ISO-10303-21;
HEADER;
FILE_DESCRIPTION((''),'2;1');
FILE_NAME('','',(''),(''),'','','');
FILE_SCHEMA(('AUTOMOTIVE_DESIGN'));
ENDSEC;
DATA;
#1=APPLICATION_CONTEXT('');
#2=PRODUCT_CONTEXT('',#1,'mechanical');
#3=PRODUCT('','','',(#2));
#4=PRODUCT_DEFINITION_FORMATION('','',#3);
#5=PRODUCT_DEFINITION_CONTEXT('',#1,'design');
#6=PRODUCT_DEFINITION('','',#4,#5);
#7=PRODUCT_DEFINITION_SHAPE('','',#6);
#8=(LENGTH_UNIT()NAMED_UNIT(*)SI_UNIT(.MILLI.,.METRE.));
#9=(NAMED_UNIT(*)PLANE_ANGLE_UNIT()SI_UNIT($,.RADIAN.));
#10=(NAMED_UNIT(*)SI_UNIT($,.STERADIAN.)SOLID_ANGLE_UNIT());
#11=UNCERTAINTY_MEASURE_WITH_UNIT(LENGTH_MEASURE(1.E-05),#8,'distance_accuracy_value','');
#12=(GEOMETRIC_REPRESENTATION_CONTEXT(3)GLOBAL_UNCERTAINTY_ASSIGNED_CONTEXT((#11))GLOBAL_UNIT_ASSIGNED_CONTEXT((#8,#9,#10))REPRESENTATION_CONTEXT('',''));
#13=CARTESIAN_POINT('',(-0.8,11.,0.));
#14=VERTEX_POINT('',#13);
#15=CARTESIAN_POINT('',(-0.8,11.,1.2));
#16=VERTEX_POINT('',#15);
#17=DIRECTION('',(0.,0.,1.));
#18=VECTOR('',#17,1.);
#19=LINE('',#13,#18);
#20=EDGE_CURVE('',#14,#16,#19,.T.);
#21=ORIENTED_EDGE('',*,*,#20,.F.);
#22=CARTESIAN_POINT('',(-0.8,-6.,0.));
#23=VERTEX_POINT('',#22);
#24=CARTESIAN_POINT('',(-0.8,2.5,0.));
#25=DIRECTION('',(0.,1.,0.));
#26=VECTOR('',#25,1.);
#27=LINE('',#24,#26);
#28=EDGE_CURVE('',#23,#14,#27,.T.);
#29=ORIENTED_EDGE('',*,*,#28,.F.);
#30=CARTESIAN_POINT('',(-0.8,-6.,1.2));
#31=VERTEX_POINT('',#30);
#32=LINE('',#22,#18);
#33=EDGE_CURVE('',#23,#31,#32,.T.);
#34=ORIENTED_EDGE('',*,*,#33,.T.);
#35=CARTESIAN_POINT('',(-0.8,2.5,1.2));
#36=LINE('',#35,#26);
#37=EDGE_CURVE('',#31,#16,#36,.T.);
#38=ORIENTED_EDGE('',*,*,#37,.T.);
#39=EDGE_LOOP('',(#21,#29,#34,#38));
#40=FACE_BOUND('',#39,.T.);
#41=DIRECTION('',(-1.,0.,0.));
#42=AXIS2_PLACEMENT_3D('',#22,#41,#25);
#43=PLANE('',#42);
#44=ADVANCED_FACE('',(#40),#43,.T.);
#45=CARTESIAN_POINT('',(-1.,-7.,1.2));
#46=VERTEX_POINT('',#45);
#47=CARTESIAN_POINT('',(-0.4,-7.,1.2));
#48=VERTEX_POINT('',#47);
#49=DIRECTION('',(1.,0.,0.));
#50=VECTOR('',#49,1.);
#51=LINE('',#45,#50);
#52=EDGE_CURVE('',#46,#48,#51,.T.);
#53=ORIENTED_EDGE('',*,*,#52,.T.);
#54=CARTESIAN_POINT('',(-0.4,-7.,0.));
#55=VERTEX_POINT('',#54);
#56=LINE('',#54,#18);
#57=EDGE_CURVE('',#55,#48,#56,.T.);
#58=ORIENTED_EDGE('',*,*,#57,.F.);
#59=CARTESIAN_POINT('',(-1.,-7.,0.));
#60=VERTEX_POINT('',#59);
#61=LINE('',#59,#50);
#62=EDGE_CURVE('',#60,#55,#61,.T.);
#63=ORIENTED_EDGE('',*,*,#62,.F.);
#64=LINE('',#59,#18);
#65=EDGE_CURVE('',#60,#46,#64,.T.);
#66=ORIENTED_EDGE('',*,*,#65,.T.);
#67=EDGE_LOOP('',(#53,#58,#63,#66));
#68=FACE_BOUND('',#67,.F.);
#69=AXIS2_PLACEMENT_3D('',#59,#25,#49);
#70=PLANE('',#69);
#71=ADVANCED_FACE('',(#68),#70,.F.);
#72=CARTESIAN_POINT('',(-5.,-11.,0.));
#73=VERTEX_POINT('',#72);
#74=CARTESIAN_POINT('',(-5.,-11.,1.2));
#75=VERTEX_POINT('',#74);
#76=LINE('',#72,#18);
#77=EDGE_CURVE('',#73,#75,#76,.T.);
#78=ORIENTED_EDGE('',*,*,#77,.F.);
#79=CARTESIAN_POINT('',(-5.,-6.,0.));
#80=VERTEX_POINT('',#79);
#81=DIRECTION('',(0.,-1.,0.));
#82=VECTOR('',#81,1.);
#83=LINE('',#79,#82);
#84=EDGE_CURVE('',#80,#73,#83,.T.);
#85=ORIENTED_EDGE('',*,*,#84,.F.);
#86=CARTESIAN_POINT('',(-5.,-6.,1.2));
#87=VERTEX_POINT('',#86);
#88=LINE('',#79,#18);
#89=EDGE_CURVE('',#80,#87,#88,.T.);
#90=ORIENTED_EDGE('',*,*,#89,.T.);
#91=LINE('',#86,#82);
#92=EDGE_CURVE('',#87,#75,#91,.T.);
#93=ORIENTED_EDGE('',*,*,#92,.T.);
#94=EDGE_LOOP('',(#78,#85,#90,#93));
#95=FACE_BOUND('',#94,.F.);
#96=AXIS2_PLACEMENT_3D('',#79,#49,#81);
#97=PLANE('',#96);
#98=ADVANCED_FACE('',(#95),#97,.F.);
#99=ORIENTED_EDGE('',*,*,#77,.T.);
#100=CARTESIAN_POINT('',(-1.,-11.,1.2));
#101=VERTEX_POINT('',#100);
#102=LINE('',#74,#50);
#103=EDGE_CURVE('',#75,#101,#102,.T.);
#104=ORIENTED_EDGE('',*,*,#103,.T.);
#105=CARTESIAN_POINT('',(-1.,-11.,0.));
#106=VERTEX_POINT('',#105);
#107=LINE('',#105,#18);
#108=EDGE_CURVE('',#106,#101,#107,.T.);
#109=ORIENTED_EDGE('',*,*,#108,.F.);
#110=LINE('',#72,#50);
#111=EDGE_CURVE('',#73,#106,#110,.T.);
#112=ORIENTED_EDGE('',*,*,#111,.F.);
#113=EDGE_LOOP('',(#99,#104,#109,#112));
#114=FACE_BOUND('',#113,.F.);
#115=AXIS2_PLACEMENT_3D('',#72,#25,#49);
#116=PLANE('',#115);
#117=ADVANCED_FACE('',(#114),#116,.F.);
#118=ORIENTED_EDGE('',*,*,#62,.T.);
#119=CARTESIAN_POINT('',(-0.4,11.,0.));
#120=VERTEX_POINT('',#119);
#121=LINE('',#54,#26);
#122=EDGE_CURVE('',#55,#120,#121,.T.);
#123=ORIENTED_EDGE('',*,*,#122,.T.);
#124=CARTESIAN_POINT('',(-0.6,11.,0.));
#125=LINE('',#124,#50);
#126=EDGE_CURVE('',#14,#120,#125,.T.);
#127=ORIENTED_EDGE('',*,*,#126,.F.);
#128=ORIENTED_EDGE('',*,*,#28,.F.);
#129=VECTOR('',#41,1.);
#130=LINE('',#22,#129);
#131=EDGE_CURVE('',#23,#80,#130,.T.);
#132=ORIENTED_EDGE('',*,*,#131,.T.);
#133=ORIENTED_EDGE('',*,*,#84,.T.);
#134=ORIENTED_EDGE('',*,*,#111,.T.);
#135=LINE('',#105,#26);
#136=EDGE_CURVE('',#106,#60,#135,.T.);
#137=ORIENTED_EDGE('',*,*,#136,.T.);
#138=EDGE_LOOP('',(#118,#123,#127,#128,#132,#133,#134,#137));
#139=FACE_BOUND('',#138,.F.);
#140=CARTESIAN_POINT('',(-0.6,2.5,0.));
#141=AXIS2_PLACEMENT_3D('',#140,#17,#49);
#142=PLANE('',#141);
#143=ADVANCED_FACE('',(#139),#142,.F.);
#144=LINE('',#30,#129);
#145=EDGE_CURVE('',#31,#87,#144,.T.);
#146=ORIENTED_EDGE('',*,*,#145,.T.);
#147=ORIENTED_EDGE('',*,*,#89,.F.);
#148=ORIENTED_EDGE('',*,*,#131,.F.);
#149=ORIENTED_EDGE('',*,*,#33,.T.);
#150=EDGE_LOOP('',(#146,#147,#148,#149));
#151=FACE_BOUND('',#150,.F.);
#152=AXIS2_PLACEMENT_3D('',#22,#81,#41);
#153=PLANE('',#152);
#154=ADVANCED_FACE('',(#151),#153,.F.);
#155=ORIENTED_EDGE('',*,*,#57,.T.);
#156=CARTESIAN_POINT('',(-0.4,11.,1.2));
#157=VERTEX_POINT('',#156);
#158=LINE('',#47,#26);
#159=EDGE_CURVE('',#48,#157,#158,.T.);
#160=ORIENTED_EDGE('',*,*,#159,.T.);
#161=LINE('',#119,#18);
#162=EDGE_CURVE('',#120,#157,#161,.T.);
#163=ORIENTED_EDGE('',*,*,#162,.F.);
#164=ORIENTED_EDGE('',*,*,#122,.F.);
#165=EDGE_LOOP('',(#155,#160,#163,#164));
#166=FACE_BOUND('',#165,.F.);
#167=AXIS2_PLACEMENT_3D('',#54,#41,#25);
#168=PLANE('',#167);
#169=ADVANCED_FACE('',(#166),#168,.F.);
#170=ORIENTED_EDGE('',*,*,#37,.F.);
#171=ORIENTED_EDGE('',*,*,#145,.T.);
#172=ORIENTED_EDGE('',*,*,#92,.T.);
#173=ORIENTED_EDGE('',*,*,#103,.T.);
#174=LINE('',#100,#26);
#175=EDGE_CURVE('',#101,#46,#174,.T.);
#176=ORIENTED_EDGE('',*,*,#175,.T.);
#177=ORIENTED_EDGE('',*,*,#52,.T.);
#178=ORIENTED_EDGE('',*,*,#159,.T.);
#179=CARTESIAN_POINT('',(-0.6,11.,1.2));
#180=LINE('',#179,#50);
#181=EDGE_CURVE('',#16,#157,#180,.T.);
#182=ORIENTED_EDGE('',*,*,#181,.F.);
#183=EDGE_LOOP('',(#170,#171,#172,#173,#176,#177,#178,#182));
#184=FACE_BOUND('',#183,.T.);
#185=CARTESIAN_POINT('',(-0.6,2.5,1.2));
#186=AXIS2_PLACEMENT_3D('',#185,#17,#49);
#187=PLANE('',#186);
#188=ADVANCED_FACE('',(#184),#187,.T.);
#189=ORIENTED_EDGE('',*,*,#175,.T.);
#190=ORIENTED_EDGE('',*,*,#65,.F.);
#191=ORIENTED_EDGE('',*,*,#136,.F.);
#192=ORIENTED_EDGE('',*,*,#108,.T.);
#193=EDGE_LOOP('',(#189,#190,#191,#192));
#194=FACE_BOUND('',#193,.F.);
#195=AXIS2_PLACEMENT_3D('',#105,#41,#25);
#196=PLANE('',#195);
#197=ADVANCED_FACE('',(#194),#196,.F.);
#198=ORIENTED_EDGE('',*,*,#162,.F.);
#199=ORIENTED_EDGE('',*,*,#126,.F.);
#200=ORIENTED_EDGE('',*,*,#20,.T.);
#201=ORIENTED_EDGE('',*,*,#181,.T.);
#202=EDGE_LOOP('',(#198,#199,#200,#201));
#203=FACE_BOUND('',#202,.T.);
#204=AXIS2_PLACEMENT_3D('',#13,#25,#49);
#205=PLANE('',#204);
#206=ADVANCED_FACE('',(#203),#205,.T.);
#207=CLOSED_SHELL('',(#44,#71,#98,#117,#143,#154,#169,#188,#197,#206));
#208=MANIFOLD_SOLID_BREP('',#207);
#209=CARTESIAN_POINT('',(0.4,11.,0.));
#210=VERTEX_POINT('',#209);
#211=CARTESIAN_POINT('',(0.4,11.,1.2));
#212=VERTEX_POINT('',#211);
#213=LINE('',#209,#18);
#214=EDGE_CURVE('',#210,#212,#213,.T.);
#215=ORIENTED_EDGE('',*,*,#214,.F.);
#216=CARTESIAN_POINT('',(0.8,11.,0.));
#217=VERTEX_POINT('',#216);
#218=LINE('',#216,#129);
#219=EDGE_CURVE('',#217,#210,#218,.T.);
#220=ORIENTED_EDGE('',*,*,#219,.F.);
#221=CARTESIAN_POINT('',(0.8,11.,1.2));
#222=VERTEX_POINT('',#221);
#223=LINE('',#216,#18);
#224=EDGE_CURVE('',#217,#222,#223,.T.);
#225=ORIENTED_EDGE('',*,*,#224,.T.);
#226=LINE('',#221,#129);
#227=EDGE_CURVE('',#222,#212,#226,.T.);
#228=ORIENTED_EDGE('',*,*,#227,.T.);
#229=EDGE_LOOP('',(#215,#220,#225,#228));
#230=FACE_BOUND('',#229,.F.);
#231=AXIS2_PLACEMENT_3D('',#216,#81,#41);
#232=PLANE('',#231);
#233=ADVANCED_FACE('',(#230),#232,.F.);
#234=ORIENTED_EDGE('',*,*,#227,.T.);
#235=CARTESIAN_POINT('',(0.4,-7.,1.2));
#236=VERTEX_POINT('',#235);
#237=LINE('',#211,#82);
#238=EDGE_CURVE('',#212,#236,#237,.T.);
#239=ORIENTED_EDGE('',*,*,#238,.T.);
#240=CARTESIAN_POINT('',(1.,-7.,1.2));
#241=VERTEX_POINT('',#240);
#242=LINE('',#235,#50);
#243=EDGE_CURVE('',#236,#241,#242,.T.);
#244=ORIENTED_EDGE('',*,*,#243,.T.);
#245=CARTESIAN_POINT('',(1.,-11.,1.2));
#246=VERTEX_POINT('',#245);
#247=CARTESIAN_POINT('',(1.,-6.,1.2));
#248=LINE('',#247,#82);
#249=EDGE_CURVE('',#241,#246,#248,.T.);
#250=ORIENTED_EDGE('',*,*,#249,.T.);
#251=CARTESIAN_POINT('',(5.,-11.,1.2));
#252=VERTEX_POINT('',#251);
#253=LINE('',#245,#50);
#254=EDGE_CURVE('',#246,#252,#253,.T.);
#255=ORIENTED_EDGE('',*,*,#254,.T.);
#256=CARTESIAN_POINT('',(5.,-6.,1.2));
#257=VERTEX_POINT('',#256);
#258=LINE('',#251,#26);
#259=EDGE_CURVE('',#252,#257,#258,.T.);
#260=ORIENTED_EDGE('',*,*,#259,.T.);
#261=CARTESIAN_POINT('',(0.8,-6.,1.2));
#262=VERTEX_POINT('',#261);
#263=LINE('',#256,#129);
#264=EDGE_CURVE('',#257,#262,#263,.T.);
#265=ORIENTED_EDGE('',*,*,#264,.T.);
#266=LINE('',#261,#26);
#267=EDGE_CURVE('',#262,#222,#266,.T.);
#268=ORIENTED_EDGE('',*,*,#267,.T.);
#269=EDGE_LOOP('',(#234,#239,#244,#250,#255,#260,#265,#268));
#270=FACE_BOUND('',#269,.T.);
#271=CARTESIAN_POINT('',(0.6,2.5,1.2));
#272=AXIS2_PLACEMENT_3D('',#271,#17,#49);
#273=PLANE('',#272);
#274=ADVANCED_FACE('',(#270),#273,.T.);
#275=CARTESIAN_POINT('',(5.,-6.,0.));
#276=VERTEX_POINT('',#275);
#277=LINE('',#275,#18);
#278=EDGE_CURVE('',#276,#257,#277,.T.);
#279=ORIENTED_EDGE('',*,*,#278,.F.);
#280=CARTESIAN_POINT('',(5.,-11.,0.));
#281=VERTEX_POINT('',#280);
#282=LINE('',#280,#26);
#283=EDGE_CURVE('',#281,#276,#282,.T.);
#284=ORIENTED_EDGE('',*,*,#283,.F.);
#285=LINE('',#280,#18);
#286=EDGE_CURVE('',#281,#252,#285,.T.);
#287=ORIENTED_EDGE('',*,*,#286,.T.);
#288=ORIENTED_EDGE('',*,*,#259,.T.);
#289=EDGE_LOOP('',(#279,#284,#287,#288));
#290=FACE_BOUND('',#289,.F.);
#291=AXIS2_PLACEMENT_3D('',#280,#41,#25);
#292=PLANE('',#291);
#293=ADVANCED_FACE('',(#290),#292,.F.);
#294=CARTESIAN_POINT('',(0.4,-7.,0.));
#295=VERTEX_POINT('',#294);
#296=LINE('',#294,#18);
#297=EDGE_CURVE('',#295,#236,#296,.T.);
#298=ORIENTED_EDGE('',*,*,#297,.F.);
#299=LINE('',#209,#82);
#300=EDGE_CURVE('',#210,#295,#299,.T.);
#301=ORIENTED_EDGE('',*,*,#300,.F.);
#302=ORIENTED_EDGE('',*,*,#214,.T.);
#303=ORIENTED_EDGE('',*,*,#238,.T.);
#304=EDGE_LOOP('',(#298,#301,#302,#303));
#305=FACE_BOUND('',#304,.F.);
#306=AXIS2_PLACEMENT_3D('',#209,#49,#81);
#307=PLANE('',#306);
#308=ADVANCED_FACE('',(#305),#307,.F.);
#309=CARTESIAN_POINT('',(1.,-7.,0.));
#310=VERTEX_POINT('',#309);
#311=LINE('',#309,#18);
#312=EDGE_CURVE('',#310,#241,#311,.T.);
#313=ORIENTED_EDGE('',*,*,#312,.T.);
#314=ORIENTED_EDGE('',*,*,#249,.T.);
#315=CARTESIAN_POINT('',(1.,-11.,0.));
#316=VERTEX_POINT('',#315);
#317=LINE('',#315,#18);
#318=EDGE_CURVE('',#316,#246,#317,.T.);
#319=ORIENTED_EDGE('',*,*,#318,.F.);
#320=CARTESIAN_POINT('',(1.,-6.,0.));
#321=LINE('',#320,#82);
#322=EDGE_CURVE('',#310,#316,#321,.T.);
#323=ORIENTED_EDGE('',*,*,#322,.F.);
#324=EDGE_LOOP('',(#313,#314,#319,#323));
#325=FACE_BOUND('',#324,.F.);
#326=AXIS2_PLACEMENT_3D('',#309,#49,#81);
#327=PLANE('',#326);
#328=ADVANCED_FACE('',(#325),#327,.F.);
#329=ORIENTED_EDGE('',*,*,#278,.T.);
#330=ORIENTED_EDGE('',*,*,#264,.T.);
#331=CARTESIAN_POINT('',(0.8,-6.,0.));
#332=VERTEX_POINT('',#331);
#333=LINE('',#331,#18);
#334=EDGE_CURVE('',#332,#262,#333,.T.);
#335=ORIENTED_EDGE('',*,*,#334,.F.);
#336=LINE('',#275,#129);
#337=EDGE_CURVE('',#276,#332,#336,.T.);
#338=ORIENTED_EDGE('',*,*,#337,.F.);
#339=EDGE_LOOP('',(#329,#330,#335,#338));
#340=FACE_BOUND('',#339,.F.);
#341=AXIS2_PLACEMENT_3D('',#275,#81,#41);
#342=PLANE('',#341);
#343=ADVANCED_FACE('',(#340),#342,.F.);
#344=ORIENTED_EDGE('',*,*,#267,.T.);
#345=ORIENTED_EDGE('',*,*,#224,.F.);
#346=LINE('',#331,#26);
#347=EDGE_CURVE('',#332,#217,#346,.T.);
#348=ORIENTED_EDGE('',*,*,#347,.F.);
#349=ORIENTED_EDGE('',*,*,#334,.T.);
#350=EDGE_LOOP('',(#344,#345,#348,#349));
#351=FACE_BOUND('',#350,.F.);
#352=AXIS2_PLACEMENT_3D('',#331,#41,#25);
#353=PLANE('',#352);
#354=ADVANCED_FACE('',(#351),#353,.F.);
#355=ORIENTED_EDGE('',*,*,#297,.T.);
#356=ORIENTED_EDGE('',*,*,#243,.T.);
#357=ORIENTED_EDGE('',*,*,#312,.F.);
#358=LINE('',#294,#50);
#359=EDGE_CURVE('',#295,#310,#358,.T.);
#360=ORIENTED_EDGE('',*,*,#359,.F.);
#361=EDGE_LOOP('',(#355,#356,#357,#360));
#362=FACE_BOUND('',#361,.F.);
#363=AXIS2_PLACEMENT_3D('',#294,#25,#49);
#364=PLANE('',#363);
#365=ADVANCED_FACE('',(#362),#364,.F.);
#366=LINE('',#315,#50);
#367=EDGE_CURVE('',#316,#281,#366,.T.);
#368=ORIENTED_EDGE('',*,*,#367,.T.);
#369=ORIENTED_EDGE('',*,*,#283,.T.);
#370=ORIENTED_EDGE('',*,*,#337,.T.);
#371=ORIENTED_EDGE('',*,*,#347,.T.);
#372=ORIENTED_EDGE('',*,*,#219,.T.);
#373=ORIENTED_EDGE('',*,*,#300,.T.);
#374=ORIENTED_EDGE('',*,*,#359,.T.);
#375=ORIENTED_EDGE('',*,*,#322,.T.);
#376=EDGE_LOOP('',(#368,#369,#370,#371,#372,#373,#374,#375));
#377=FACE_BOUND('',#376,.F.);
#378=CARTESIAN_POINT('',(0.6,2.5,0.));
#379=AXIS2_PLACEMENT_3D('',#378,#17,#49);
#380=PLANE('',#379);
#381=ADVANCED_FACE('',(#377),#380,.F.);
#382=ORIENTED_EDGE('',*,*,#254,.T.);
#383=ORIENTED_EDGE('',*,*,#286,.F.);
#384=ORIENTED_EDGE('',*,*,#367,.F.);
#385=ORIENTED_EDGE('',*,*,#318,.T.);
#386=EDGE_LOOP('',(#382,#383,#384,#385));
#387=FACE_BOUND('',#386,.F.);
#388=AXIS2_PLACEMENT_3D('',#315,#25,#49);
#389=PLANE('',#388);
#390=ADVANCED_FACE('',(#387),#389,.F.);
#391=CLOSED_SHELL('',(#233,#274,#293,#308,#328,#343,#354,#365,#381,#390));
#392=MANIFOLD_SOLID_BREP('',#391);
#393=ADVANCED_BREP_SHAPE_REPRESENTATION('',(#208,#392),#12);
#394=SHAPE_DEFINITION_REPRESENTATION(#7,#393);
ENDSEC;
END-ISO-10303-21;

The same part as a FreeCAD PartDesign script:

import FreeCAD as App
import Part
import Sketcher
Q = App.Units.Quantity


def add_polygon(sketch, points):
    """Adds a closed chain of lines whose ends are joined by coincident constraints."""
    first, n = sketch.GeometryCount, len(points)
    for a, b in zip(points, points[1:] + points[:1]):
        sketch.addGeometry(Part.LineSegment(App.Vector(*a, 0), App.Vector(*b, 0)), False)
    for i in range(n):
        sketch.addConstraint(Sketcher.Constraint("Coincident", first + i, 2, first + (i + 1) % n, 1))

doc = App.newDocument("Part")
params = doc.addObject("Spreadsheet::Sheet", "Params")
for row, (alias, value) in enumerate([
    ("sketch1_width", "4 mm"),
    ("sketch1_height", "17 mm"),
    ("sketch1_height2", "18 mm"),
    ("sketch1_width2", "0.4 mm"),
    ("sketch1_width3", "0.6 mm"),
    ("pad1_length", "1.2 mm"),
    ("sketch2_width", "4 mm"),
    ("sketch2_height", "17 mm"),
    ("sketch2_height2", "5 mm"),
    ("sketch2_width2", "4.2 mm"),
    ("sketch2_width3", "0.6 mm"),
    ("pad2_length", "1.2 mm"),
], start=1):
    params.set(f"A{row}", alias)
    params.set(f"B{row}", "=" + value)
    params.setAlias(f"B{row}", alias)

body = doc.addObject("PartDesign::Body", "Body")

# Sketch on XY plane
sketch1 = doc.addObject("Sketcher::SketchObject", "Sketch")
body.addObject(sketch1)
sketch1.AttachmentSupport = (doc.XY_Plane, [""])
sketch1.MapMode = "FlatFace"
add_polygon(sketch1, [(0.8, -6), (0.8, 11), (0.4, 11), (0.4, -7), (1, -7), (1, -11), (5, -11), (5, -6)])  # lines 0-7
sketch1.addConstraint([
    Sketcher.Constraint("Vertical", 0),
    Sketcher.Constraint("Horizontal", 1),
    Sketcher.Constraint("Vertical", 2),
    Sketcher.Constraint("Horizontal", 3),
    Sketcher.Constraint("Vertical", 4),
    Sketcher.Constraint("Horizontal", 5),
    Sketcher.Constraint("Vertical", 6),
    Sketcher.Constraint("Horizontal", 7),
    Sketcher.Constraint("Equal", 5, 4),
    Sketcher.Constraint("DistanceX", 5, 1, 5, 2, Q("4 mm")),
    Sketcher.Constraint("DistanceY", 0, 1, 0, 2, Q("17 mm")),
    Sketcher.Constraint("DistanceY", 2, 2, 2, 1, Q("18 mm")),
    Sketcher.Constraint("DistanceX", 1, 2, 1, 1, Q("0.4 mm")),
    Sketcher.Constraint("DistanceX", 3, 1, 3, 2, Q("0.6 mm")),
    Sketcher.Constraint("DistanceY", -1, 1, 0, 2, Q("11 mm")),
    Sketcher.Constraint("DistanceX", -1, 1, 3, 2, Q("1 mm")),
])
sketch1.setExpression("Constraints[17]", "Params.sketch1_width")
sketch1.setExpression("Constraints[18]", "Params.sketch1_height")
sketch1.setExpression("Constraints[19]", "Params.sketch1_height2")
sketch1.setExpression("Constraints[20]", "Params.sketch1_width2")
sketch1.setExpression("Constraints[21]", "Params.sketch1_width3")
pad1 = doc.addObject("PartDesign::Pad", "Pad")
body.addObject(pad1)
pad1.Profile = sketch1
pad1.setExpression("Length", "Params.pad1_length")
body2 = doc.addObject("PartDesign::Body", "Body001")

# Sketch on XY plane
sketch2 = doc.addObject("Sketcher::SketchObject", "Sketch001")
body2.addObject(sketch2)
sketch2.AttachmentSupport = (doc.getObject("XY_Plane001"), [""])
sketch2.MapMode = "FlatFace"
add_polygon(sketch2, [(-0.8, 11), (-0.8, -6), (-5, -6), (-5, -11), (-1, -11), (-1, -7), (-0.4, -7), (-0.4, 11)])  # lines 0-7
sketch2.addConstraint([
    Sketcher.Constraint("Vertical", 0),
    Sketcher.Constraint("Horizontal", 1),
    Sketcher.Constraint("Vertical", 2),
    Sketcher.Constraint("Horizontal", 3),
    Sketcher.Constraint("Vertical", 4),
    Sketcher.Constraint("Horizontal", 5),
    Sketcher.Constraint("Vertical", 6),
    Sketcher.Constraint("Horizontal", 7),
    Sketcher.Constraint("Equal", 3, 4),
    Sketcher.Constraint("DistanceX", 3, 1, 3, 2, Q("4 mm")),
    Sketcher.Constraint("DistanceY", 0, 2, 0, 1, Q("17 mm")),
    Sketcher.Constraint("DistanceY", 2, 2, 2, 1, Q("5 mm")),
    Sketcher.Constraint("DistanceX", 1, 2, 1, 1, Q("4.2 mm")),
    Sketcher.Constraint("DistanceX", 5, 1, 5, 2, Q("0.6 mm")),
    Sketcher.Constraint("DistanceY", 0, 2, -1, 1, Q("6 mm")),
    Sketcher.Constraint("DistanceX", 1, 2, -1, 1, Q("5 mm")),
])
sketch2.setExpression("Constraints[17]", "Params.sketch2_width")
sketch2.setExpression("Constraints[18]", "Params.sketch2_height")
sketch2.setExpression("Constraints[19]", "Params.sketch2_height2")
sketch2.setExpression("Constraints[20]", "Params.sketch2_width2")
sketch2.setExpression("Constraints[21]", "Params.sketch2_width3")
pad2 = doc.addObject("PartDesign::Pad", "Pad001")
body2.addObject(pad2)
pad2.Profile = sketch2
pad2.setExpression("Length", "Params.pad2_length")

doc.recompute()
